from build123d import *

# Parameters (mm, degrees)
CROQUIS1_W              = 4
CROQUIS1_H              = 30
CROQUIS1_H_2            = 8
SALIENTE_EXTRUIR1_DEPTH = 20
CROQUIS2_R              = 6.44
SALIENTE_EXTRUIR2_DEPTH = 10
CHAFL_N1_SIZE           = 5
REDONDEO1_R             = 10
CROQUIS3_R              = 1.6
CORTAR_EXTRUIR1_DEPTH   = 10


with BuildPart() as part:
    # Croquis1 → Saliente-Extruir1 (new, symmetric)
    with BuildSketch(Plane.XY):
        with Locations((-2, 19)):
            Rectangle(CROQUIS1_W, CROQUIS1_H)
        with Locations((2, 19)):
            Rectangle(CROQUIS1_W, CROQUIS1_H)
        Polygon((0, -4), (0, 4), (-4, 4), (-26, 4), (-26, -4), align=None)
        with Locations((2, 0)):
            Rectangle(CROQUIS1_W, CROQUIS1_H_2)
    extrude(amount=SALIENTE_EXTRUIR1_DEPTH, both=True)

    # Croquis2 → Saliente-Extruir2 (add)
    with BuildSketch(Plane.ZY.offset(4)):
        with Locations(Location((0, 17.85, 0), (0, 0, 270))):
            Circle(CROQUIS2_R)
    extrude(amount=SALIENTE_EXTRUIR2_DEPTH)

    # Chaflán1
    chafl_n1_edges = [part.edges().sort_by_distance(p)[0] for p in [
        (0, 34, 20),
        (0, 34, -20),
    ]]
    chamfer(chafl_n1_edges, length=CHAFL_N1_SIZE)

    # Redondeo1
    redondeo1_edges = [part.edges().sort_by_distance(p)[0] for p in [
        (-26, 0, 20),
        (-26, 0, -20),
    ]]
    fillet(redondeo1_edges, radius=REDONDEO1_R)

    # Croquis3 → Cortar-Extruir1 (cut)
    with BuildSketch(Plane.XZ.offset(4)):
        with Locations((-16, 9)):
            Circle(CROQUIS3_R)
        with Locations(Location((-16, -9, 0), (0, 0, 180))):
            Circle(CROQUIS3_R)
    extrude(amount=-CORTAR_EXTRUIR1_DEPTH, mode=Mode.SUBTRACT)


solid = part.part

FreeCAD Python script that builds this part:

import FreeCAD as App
import Part
import Sketcher


def edges_at(feature, points):
    """Names of the edges that pass closest to the given points."""
    edges = feature.Shape.Edges
    near = lambda p: min(range(len(edges)), key=lambda i: edges[i].distToShape(Part.Vertex(*p))[0])
    return sorted({f"Edge{near(p) + 1}" for p in points})

doc = App.newDocument("Part")
body = doc.addObject("PartDesign::Body", "Body")

# Sketch on XY plane
sketch1 = body.newObject("Sketcher::SketchObject", "Sketch")
sketch1.AttachmentSupport = (doc.getObject("XY_Plane"), [""])
sketch1.MapMode = "FlatFace"
sketch1.addGeometry([
    Part.LineSegment(App.Vector(-4, 34, 0), App.Vector(-4, 4, 0)),  # 0
    Part.LineSegment(App.Vector(-4, 4, 0), App.Vector(-26, 4, 0)),  # 1
    Part.LineSegment(App.Vector(-26, 4, 0), App.Vector(-26, -4, 0)),  # 2
    Part.LineSegment(App.Vector(-26, -4, 0), App.Vector(4, -4, 0)),  # 3
    Part.LineSegment(App.Vector(4, -4, 0), App.Vector(4, 34, 0)),  # 4
    Part.LineSegment(App.Vector(4, 34, 0), App.Vector(-4, 34, 0)),  # 5
], False)
sketch1.addConstraint([
    Sketcher.Constraint("Coincident", 0, 2, 1, 1),
    Sketcher.Constraint("Coincident", 1, 2, 2, 1),
    Sketcher.Constraint("Coincident", 2, 2, 3, 1),
    Sketcher.Constraint("Coincident", 3, 2, 4, 1),
    Sketcher.Constraint("Coincident", 4, 2, 5, 1),
    Sketcher.Constraint("Coincident", 5, 2, 0, 1),
    Sketcher.Constraint("Vertical", 0),
    Sketcher.Constraint("Horizontal", 1),
    Sketcher.Constraint("Vertical", 2),
    Sketcher.Constraint("Horizontal", 3),
    Sketcher.Constraint("Vertical", 4),
    Sketcher.Constraint("Horizontal", 5),
    Sketcher.Constraint("Symmetric", 0, 2, 3, 2, -1, 1),
    Sketcher.Constraint("Equal", 3, 0),
    Sketcher.Constraint("Equal", 5, 2),
    Sketcher.Constraint("DistanceX", 1, 2, 1, 1, 22.0),
    Sketcher.Constraint("DistanceX", 3, 1, 3, 2, 30.0),
])
pad1 = body.newObject("PartDesign::Pad", "Pad")
pad1.Profile = sketch1
pad1.Length = 40
pad1.Midplane = True

# Sketch on YZ plane
sketch2 = body.newObject("Sketcher::SketchObject", "Sketch001")
sketch2.AttachmentSupport = (doc.getObject("YZ_Plane"), [""])
sketch2.MapMode = "FlatFace"
sketch2.AttachmentOffset = App.Placement(App.Vector(0, 0, -4), App.Rotation())
sketch2.addGeometry(Part.Circle(App.Vector(17.85, 0, 0), App.Vector(0, 0, 1), 6.44), False)
sketch2.addConstraint([
    Sketcher.Constraint("PointOnObject", 0, 3, -1),
    Sketcher.Constraint("Diameter", 0, 12.88),
    Sketcher.Constraint("DistanceX", -1, 1, 0, 3, 17.85),
])
pad2 = body.newObject("PartDesign::Pad", "Pad001")
pad2.Profile = sketch2
pad2.Length = 10
pad2.Reversed = True
doc.recompute()

chamfer = body.newObject("PartDesign::Chamfer", "Chamfer")
chamfer.Base = (pad2, edges_at(pad2, [(0, 34, 20), (0, 34, -20)]))
chamfer.Size = 5
doc.recompute()

fillet = body.newObject("PartDesign::Fillet", "Fillet")
fillet.Base = (chamfer, edges_at(chamfer, [(-26, 0, 20), (-26, 0, -20)]))
fillet.Radius = 10

# Sketch on XZ plane
sketch3 = body.newObject("Sketcher::SketchObject", "Sketch002")
sketch3.AttachmentSupport = (doc.getObject("XZ_Plane"), [""])
sketch3.MapMode = "FlatFace"
sketch3.AttachmentOffset = App.Placement(App.Vector(0, 0, 4), App.Rotation())
sketch3.addGeometry([
    Part.Circle(App.Vector(-16, 9, 0), App.Vector(0, 0, 1), 1.6),
    Part.Circle(App.Vector(-16, -9, 0), App.Vector(0, 0, 1), 1.6),
], False)
sketch3.addConstraint([
    Sketcher.Constraint("Equal", 0, 1),
    Sketcher.Constraint("Symmetric", 0, 3, 1, 3, -1),
    Sketcher.Constraint("Diameter", 0, 3.2),
    Sketcher.Constraint("DistanceX", 0, 3, -1, 1, 16.0),
    Sketcher.Constraint("DistanceY", -1, 1, 0, 3, 9.0),
])
pocket1 = body.newObject("PartDesign::Pocket", "Pocket")
pocket1.Profile = sketch3
pocket1.Length = 10

doc.recompute()
